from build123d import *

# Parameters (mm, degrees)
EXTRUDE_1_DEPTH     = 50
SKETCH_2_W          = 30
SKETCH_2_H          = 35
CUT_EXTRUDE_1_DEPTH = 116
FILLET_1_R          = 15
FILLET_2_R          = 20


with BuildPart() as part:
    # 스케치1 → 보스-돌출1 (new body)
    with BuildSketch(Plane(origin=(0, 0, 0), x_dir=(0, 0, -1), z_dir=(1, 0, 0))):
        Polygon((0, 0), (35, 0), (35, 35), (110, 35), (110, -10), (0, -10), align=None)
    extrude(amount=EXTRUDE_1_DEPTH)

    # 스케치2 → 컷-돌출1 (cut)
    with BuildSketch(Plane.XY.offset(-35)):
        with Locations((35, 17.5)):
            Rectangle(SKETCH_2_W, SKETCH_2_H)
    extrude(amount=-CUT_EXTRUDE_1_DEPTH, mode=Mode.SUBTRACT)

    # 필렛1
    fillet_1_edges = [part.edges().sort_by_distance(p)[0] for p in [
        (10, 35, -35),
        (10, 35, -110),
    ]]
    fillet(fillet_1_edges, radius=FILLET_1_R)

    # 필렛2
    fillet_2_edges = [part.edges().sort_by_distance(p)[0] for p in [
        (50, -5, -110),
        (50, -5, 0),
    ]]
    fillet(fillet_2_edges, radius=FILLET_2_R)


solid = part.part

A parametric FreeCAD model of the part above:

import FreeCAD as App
import Part
import Sketcher

V = App.Vector
Q = App.Units.Quantity


def edges_at(feature, points):
    """Names of the edges that pass closest to the given points."""
    edges = feature.Shape.Edges
    near = lambda p: min(range(len(edges)), key=lambda i: edges[i].distToShape(Part.Vertex(*p))[0])
    return sorted({f"Edge{near(p) + 1}" for p in points})

doc = App.newDocument("Part")
body = doc.addObject("PartDesign::Body", "Body")

sketch1 = body.newObject("Sketcher::SketchObject", "Sketch")
sketch1.AttachmentSupport = (doc.getObject("YZ_Plane"), [""])
sketch1.MapMode = "FlatFace"
sketch1.addGeometry(Part.LineSegment(V(0, -35, 0), V(0, 0, 0)), False)
sketch1.addGeometry(Part.LineSegment(V(0, 0, 0), V(-10, 0, 0)), False)
sketch1.addGeometry(Part.LineSegment(V(-10, 0, 0), V(-10, -110, 0)), False)
sketch1.addGeometry(Part.LineSegment(V(-10, -110, 0), V(35, -110, 0)), False)
sketch1.addGeometry(Part.LineSegment(V(35, -110, 0), V(35, -35, 0)), False)
sketch1.addGeometry(Part.LineSegment(V(35, -35, 0), V(0, -35, 0)), False)
sketch1.addConstraint(Sketcher.Constraint("Coincident", 0, 2, 1, 1))
sketch1.addConstraint(Sketcher.Constraint("Coincident", 1, 2, 2, 1))
sketch1.addConstraint(Sketcher.Constraint("Coincident", 2, 2, 3, 1))
sketch1.addConstraint(Sketcher.Constraint("Coincident", 3, 2, 4, 1))
sketch1.addConstraint(Sketcher.Constraint("Coincident", 4, 2, 5, 1))
sketch1.addConstraint(Sketcher.Constraint("Coincident", 5, 2, 0, 1))
sketch1.addConstraint(Sketcher.Constraint("Vertical", 0))
sketch1.addConstraint(Sketcher.Constraint("Horizontal", 1))
sketch1.addConstraint(Sketcher.Constraint("Vertical", 2))
sketch1.addConstraint(Sketcher.Constraint("Horizontal", 3))
sketch1.addConstraint(Sketcher.Constraint("Vertical", 4))
sketch1.addConstraint(Sketcher.Constraint("Horizontal", 5))
sketch1.addConstraint(Sketcher.Constraint("Coincident", 0, 2, -1, 1))
sketch1.addConstraint(Sketcher.Constraint("Equal", 5, 0))
sketch1.addConstraint(Sketcher.Constraint("DistanceX", 1, 2, 1, 1, Q("10 mm")))
sketch1.addConstraint(Sketcher.Constraint("DistanceX", 3, 1, 3, 2, Q("45 mm")))
sketch1.addConstraint(Sketcher.Constraint("DistanceY", 2, 2, 2, 1, Q("110 mm")))
pad1 = body.newObject("PartDesign::Pad", "Pad")
pad1.Profile = sketch1
pad1.Length = 50

sketch2 = body.newObject("Sketcher::SketchObject", "Sketch001")
sketch2.AttachmentSupport = (doc.getObject("XY_Plane"), [""])
sketch2.MapMode = "FlatFace"
sketch2.AttachmentOffset = App.Placement(V(0, 0, -35), App.Rotation())
sketch2.addGeometry(Part.LineSegment(V(20, 35, 0), V(20, 0, 0)), False)
sketch2.addGeometry(Part.LineSegment(V(20, 0, 0), V(50, 0, 0)), False)
sketch2.addGeometry(Part.LineSegment(V(50, 0, 0), V(50, 35, 0)), False)
sketch2.addGeometry(Part.LineSegment(V(50, 35, 0), V(20, 35, 0)), False)
sketch2.addConstraint(Sketcher.Constraint("Coincident", 0, 2, 1, 1))
sketch2.addConstraint(Sketcher.Constraint("Coincident", 1, 2, 2, 1))
sketch2.addConstraint(Sketcher.Constraint("Coincident", 2, 2, 3, 1))
sketch2.addConstraint(Sketcher.Constraint("Coincident", 3, 2, 0, 1))
sketch2.addConstraint(Sketcher.Constraint("Vertical", 0))
sketch2.addConstraint(Sketcher.Constraint("Horizontal", 1))
sketch2.addConstraint(Sketcher.Constraint("Vertical", 2))
sketch2.addConstraint(Sketcher.Constraint("Horizontal", 3))
sketch2.addConstraint(Sketcher.Constraint("PointOnObject", 0, 2, -1))
sketch2.addConstraint(Sketcher.Constraint("DistanceX", 1, 1, 1, 2, Q("30 mm")))
sketch2.addConstraint(Sketcher.Constraint("DistanceY", 0, 2, 0, 1, Q("35 mm")))
sketch2.addConstraint(Sketcher.Constraint("DistanceX", -1, 1, 0, 2, Q("20 mm")))
pocket1 = body.newObject("PartDesign::Pocket", "Pocket")
pocket1.Profile = sketch2
pocket1.Length = 116
doc.recompute()

fillet = body.newObject("PartDesign::Fillet", "Fillet")
fillet.Base = (pocket1, edges_at(pocket1, [(10, 35, -35), (10, 35, -110)]))
fillet.Radius = 15
doc.recompute()

fillet2 = body.newObject("PartDesign::Fillet", "Fillet001")
fillet2.Base = (fillet, edges_at(fillet, [(50, -5, -110), (50, -5, 0)]))
fillet2.Radius = 20

doc.recompute()
